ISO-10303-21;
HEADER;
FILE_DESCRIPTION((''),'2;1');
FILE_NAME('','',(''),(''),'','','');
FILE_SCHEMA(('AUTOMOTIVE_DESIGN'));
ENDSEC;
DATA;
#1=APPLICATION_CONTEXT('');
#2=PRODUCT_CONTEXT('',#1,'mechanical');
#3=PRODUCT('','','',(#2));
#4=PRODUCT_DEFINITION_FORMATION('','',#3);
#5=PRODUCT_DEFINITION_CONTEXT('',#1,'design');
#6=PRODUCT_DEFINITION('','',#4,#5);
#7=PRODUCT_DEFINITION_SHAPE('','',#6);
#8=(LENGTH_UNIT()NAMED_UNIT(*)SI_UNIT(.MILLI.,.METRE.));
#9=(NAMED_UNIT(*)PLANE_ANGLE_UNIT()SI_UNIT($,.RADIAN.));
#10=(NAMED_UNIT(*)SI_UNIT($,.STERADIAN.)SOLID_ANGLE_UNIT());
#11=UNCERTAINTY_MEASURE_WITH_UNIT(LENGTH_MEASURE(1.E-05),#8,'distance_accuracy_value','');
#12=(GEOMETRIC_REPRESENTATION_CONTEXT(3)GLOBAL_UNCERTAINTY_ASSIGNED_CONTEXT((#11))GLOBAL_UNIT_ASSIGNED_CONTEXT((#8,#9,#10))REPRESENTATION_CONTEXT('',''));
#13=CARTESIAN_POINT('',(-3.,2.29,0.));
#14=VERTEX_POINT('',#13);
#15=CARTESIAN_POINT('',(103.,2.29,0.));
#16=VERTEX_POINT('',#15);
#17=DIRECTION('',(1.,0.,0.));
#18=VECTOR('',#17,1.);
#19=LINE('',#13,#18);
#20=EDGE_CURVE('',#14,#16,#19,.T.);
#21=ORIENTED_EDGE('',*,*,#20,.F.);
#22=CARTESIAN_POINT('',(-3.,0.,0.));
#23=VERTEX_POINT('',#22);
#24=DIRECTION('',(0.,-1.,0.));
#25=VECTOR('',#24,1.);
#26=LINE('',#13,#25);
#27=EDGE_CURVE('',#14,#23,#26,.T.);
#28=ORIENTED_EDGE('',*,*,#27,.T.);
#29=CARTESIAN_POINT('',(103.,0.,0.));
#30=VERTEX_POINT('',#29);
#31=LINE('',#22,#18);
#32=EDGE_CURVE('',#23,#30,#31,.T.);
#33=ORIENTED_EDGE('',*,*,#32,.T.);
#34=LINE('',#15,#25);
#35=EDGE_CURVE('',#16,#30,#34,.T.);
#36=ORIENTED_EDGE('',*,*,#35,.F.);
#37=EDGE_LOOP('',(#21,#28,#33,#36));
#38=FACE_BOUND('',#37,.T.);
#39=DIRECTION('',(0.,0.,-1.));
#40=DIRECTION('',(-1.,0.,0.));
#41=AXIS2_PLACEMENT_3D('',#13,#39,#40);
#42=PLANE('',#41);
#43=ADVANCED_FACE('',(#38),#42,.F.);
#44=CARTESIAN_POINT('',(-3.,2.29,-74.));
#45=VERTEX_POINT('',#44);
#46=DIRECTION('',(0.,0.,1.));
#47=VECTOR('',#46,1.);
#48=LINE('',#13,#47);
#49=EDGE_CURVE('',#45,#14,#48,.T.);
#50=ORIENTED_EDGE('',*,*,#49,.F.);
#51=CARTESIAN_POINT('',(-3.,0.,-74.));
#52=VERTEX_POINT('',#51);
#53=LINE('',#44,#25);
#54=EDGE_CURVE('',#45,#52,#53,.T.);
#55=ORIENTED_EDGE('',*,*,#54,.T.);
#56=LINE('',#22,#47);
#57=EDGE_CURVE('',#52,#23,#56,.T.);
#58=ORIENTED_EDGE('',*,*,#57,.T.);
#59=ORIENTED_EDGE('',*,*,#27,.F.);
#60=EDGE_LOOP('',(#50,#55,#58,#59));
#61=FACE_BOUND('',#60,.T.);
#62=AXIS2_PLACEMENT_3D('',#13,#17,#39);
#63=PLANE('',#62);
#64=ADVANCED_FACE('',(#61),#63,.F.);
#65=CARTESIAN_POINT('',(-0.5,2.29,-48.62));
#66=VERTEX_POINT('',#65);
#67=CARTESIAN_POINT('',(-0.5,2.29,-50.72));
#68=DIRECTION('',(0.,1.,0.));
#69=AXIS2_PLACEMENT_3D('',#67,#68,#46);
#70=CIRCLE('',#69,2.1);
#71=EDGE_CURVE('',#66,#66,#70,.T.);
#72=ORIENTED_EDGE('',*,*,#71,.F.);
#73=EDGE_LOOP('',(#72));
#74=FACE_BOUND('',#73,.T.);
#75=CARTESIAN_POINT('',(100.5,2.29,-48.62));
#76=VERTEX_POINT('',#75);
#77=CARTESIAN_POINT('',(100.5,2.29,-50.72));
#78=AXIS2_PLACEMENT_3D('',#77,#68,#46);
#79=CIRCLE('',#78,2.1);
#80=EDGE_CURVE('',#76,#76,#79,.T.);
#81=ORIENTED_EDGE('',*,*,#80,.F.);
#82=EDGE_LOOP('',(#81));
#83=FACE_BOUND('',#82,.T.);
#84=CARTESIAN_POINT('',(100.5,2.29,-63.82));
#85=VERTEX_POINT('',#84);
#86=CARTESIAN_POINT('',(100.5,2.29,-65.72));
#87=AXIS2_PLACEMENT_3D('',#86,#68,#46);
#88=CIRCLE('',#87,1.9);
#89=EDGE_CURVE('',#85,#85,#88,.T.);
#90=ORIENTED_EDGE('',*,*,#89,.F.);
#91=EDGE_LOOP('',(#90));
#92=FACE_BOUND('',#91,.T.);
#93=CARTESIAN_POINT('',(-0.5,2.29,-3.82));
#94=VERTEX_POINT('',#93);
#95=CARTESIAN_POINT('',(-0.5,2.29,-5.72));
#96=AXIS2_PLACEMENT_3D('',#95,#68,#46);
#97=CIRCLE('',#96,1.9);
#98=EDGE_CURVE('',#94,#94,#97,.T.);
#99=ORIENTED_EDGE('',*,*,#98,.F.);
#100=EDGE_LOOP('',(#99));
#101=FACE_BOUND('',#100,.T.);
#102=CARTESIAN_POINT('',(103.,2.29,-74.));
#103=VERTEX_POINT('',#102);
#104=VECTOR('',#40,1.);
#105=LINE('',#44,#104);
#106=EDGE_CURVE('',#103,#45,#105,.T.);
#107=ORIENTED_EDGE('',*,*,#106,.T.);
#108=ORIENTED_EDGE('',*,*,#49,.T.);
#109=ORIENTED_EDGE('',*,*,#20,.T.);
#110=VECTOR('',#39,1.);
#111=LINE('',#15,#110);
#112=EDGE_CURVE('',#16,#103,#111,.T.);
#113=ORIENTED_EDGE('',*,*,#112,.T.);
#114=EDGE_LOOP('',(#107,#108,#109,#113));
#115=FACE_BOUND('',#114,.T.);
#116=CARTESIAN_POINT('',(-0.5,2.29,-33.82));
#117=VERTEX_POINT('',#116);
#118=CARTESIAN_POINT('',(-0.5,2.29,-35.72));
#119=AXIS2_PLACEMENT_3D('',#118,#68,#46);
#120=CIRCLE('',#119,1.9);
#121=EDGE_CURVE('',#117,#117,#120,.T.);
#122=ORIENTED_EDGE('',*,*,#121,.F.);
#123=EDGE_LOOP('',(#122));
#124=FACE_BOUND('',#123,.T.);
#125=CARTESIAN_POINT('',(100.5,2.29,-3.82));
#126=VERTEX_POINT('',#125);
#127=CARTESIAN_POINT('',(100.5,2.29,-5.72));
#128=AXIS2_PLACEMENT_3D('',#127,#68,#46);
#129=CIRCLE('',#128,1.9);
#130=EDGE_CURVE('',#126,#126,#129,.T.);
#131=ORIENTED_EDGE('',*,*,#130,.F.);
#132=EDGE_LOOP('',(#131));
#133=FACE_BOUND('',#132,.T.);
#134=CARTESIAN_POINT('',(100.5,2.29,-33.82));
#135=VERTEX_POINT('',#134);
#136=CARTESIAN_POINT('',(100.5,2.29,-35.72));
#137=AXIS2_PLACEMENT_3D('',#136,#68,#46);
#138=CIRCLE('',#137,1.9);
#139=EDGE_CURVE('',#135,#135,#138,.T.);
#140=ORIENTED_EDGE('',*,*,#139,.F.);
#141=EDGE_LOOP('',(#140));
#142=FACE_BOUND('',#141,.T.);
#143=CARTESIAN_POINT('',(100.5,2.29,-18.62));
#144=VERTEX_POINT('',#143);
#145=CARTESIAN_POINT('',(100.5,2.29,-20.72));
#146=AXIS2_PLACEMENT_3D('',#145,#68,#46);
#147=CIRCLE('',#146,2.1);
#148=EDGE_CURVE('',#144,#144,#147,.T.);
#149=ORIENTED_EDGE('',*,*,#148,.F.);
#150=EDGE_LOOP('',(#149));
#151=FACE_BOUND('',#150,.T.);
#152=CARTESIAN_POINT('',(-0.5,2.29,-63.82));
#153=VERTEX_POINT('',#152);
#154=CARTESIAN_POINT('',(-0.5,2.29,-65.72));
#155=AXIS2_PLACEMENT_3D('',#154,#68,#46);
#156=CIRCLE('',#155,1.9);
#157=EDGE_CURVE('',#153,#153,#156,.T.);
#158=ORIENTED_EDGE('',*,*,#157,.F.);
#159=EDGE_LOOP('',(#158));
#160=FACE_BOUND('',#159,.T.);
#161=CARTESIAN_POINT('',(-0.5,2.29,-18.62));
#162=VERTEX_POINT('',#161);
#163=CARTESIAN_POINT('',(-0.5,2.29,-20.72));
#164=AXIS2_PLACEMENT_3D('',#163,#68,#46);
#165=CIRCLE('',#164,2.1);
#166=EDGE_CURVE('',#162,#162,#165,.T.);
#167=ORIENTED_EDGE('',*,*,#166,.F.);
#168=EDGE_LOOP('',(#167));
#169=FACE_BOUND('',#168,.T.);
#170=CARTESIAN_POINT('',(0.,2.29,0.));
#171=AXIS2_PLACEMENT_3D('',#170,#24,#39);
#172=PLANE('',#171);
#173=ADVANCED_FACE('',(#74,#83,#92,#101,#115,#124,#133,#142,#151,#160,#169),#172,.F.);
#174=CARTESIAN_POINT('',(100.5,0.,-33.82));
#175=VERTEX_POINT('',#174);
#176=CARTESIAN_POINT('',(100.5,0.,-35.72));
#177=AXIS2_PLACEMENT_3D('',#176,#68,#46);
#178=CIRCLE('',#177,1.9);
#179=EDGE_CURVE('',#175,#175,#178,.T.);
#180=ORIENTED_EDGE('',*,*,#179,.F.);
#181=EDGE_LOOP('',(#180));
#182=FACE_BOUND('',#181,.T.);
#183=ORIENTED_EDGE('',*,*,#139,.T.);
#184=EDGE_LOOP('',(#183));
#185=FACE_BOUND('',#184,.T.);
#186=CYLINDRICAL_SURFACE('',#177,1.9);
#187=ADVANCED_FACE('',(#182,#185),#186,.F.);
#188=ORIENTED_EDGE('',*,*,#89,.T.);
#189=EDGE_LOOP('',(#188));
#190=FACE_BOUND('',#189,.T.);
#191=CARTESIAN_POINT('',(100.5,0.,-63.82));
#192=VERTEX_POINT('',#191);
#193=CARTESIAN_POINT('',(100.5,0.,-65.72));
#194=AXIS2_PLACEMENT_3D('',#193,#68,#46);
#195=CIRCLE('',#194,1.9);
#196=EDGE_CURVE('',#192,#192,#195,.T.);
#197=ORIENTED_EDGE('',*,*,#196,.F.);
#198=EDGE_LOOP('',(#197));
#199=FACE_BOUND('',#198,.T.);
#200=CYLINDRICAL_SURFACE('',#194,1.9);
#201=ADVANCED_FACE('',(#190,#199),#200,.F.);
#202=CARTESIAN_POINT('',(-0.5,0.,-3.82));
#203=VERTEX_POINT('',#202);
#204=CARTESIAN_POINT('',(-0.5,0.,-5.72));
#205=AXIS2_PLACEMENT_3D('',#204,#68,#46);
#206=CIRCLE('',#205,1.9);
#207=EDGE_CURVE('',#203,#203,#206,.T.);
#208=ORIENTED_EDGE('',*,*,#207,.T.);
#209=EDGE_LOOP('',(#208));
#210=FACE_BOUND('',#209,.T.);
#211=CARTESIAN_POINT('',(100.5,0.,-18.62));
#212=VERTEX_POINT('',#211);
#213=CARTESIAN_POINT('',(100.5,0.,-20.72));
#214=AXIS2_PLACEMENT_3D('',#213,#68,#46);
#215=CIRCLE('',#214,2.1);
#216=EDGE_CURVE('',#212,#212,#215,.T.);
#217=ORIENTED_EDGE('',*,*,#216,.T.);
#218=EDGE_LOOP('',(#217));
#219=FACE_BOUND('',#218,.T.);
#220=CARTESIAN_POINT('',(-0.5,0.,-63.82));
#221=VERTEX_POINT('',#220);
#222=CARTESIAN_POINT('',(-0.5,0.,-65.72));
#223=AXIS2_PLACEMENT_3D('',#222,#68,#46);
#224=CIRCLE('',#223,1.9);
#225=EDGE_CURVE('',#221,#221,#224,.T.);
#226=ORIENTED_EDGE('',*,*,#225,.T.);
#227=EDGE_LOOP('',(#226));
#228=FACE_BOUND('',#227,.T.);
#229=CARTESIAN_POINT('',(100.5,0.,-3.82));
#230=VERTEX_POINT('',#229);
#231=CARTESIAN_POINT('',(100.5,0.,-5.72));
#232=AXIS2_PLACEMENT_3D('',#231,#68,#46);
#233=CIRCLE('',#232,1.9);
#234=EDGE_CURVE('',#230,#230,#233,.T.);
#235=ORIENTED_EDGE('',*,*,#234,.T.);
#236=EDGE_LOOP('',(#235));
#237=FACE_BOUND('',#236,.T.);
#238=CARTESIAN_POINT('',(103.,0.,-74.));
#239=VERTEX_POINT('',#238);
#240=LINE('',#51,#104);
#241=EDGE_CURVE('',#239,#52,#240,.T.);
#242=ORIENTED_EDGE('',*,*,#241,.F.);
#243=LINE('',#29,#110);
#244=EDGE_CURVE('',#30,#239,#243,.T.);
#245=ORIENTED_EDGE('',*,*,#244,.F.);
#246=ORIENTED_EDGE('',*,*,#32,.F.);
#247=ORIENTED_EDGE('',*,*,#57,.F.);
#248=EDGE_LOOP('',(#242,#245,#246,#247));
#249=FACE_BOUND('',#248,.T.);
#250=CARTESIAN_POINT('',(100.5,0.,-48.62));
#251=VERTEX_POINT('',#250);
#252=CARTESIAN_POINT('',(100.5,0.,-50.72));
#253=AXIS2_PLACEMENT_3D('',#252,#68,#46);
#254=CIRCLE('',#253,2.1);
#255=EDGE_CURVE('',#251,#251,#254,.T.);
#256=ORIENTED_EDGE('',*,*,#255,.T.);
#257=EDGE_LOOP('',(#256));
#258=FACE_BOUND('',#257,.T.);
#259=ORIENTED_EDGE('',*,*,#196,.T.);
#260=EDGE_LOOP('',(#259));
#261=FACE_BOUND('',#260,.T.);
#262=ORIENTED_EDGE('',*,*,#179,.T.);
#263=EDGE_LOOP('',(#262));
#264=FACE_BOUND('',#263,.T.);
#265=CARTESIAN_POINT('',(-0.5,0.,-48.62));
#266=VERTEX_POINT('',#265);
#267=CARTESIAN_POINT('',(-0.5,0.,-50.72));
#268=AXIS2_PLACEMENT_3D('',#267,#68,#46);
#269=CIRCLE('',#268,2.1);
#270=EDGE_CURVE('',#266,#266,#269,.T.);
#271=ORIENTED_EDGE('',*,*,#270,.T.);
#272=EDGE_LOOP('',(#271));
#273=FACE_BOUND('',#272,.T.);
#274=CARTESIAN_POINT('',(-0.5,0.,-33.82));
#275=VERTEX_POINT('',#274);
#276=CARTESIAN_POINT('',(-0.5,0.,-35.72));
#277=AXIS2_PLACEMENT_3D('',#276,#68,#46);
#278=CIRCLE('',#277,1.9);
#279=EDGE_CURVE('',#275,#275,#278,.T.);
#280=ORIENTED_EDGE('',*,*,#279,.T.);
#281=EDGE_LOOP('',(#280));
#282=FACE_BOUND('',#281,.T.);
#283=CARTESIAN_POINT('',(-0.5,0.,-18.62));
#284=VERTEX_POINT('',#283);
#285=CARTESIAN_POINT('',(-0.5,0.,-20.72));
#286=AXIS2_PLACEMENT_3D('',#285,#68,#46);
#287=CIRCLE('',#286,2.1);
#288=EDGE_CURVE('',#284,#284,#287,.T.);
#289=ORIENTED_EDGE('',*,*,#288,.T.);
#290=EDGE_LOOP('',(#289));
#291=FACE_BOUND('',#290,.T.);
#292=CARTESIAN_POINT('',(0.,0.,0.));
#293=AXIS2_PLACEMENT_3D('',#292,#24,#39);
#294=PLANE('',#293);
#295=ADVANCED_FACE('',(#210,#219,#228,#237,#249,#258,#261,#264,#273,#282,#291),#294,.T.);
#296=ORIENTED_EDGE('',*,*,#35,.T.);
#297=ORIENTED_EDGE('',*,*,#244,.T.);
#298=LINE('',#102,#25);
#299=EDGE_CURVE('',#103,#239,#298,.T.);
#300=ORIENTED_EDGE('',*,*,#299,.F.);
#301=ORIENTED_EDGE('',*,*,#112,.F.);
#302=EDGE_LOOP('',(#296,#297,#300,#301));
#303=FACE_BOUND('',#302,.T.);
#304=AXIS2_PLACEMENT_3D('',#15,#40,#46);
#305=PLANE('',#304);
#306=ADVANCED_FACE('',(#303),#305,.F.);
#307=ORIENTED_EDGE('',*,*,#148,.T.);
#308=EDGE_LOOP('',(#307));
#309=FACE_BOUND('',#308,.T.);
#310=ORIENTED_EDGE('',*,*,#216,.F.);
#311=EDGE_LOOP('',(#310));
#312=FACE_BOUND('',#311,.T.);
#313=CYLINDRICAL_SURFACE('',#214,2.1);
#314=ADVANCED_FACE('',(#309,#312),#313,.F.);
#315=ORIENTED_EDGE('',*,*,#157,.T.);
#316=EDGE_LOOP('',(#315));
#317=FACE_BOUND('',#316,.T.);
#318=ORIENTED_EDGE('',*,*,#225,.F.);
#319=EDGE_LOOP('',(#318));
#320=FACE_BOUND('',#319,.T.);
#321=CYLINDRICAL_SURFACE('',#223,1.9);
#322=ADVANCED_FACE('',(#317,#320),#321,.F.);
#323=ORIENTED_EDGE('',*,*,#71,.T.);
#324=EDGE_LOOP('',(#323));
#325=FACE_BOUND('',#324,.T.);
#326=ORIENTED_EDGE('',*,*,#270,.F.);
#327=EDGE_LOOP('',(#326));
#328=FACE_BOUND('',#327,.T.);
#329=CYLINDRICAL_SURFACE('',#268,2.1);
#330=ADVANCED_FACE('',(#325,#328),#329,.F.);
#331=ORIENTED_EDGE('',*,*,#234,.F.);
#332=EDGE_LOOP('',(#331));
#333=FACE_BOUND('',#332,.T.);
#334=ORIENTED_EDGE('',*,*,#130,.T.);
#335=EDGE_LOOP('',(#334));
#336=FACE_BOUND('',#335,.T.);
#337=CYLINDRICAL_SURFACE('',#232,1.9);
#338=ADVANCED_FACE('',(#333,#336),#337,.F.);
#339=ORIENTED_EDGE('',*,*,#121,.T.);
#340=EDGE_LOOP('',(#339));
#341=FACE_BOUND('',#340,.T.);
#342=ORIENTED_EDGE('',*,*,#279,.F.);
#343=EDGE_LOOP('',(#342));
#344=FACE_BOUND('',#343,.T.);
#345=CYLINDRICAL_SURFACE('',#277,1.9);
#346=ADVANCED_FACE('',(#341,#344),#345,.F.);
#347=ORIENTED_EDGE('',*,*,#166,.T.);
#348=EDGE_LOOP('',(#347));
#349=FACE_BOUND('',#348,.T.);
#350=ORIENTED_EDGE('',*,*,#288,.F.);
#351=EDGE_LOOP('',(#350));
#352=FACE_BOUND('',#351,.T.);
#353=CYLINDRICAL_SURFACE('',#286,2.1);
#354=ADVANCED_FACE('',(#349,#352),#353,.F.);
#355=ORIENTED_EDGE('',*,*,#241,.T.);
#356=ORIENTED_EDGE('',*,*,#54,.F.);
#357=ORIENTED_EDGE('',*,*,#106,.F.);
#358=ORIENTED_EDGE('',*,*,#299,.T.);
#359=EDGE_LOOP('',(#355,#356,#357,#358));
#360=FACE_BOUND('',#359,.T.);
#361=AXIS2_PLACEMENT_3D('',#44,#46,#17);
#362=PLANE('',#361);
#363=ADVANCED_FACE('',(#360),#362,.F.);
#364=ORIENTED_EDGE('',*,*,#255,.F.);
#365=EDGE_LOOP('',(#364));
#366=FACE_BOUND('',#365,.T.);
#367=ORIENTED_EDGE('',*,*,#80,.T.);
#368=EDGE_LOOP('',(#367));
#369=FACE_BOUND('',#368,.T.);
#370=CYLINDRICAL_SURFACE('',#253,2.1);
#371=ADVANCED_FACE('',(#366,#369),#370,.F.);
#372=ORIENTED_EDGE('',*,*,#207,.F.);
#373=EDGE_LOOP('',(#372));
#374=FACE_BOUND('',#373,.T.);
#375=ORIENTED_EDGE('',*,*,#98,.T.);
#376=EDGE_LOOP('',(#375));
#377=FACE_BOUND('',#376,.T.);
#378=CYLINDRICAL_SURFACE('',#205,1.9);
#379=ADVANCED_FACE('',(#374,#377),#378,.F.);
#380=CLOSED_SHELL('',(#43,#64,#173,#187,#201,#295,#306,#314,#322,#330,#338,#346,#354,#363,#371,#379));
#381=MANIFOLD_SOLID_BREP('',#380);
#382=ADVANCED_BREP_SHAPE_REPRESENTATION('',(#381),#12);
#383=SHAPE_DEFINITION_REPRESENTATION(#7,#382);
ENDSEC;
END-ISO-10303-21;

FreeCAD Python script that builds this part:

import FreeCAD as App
import Part
import Sketcher
from FreeCAD import Vector


def add_polygon(sketch, points):
    """Adds a closed chain of lines whose ends are joined by coincident constraints."""
    first, n = sketch.GeometryCount, len(points)
    for a, b in zip(points, points[1:] + points[:1]):
        sketch.addGeometry(Part.LineSegment(App.Vector(*a, 0), App.Vector(*b, 0)), False)
    for i in range(n):
        sketch.addConstraint(Sketcher.Constraint("Coincident", first + i, 2, first + (i + 1) % n, 1))

doc = App.newDocument("Part")
params = doc.addObject("Spreadsheet::Sheet", "Params")
for row, (alias, value) in enumerate([
    ("sketch1_width", "106 mm"),
    ("sketch1_height", "74 mm"),
    ("pad1_length", "2.29 mm"),
    ("sketch2_diameter", "3.8 mm"),
    ("sketch2_diameter2", "4.2 mm"),
], start=1):
    params.set(f"A{row}", alias)
    params.set(f"B{row}", "=" + value)
    params.setAlias(f"B{row}", alias)

body = doc.addObject("PartDesign::Body", "Body")

# Sketch on XZ plane
sketch1 = body.newObject("Sketcher::SketchObject", "Sketch")
sketch1.AttachmentSupport = (doc.getObject("XZ_Plane"), [""])
sketch1.MapMode = "FlatFace"
add_polygon(sketch1, [(-3, -74), (-3, 0), (103, 0), (103, -74)])  # lines 0-3
sketch1.addConstraint([
    Sketcher.Constraint("Vertical", 0),
    Sketcher.Constraint("Horizontal", 1),
    Sketcher.Constraint("Vertical", 2),
    Sketcher.Constraint("Horizontal", 3),
    Sketcher.Constraint("PointOnObject", 0, 2, -1),
    Sketcher.Constraint("DistanceX", 1, 1, 1, 2, 106.0),
    Sketcher.Constraint("DistanceY", 0, 1, 0, 2, 74.0),
    Sketcher.Constraint("DistanceX", 0, 2, -1, 1, 3.0),
])
sketch1.setExpression("Constraints[9]", "Params.sketch1_width")
sketch1.setExpression("Constraints[10]", "Params.sketch1_height")
pad1 = body.newObject("PartDesign::Pad", "Pad")
pad1.Profile = sketch1
pad1.setExpression("Length", "Params.pad1_length")
pad1.Reversed = True

# Sketch on XZ plane
sketch2 = body.newObject("Sketcher::SketchObject", "Sketch001")
sketch2.AttachmentSupport = (doc.getObject("XZ_Plane"), [""])
sketch2.MapMode = "FlatFace"
sketch2.AttachmentOffset = App.Placement(Vector(0, 0, -2.29), App.Rotation())
sketch2.addGeometry([
    Part.Circle(Vector(-0.5, -5.72, 0), Vector(0, 0, 1), 1.9),  # 0
    Part.Circle(Vector(100.5, -5.72, 0), Vector(0, 0, 1), 1.9),  # 1
    Part.Circle(Vector(100.5, -35.72, 0), Vector(0, 0, 1), 1.9),  # 2
    Part.Circle(Vector(100.5, -65.72, 0), Vector(0, 0, 1), 1.9),  # 3
    Part.Circle(Vector(-0.5, -35.72, 0), Vector(0, 0, 1), 1.9),  # 4
    Part.Circle(Vector(-0.5, -65.72, 0), Vector(0, 0, 1), 1.9),  # 5
    Part.Circle(Vector(-0.5, -20.72, 0), Vector(0, 0, 1), 2.1),  # 6
    Part.Circle(Vector(100.5, -20.72, 0), Vector(0, 0, 1), 2.1),  # 7
    Part.Circle(Vector(100.5, -50.72, 0), Vector(0, 0, 1), 2.1),  # 8
    Part.Circle(Vector(-0.5, -50.72, 0), Vector(0, 0, 1), 2.1),  # 9
], False)
sketch2.addConstraint([
    Sketcher.Constraint("Equal", 0, 1),
    Sketcher.Constraint("Equal", 1, 2),
    Sketcher.Constraint("Equal", 2, 3),
    Sketcher.Constraint("Equal", 3, 4),
    Sketcher.Constraint("Equal", 4, 5),
    Sketcher.Constraint("Equal", 6, 7),
    Sketcher.Constraint("Equal", 7, 8),
    Sketcher.Constraint("Equal", 8, 9),
    Sketcher.Constraint("Horizontal", 0, 3, 1, 3),
    Sketcher.Constraint("Horizontal", 2, 3, 4, 3),
    Sketcher.Constraint("Horizontal", 3, 3, 5, 3),
    Sketcher.Constraint("Horizontal", 6, 3, 7, 3),
    Sketcher.Constraint("Horizontal", 8, 3, 9, 3),
    Sketcher.Constraint("Vertical", 1, 3, 2, 3),
    Sketcher.Constraint("Vertical", 2, 3, 3, 3),
    Sketcher.Constraint("Vertical", 0, 3, 4, 3),
    Sketcher.Constraint("Vertical", 4, 3, 5, 3),
    Sketcher.Constraint("Vertical", 5, 3, 6, 3),
    Sketcher.Constraint("Vertical", 3, 3, 7, 3),
    Sketcher.Constraint("Vertical", 7, 3, 8, 3),
    Sketcher.Constraint("Vertical", 6, 3, 9, 3),
    Sketcher.Constraint("Diameter", 0, 3.8),
    Sketcher.Constraint("Diameter", 6, 4.2),
    Sketcher.Constraint("DistanceX", 0, 3, 1, 3, 101.0),
    Sketcher.Constraint("DistanceY", 2, 3, 1, 3, 30.0),
    Sketcher.Constraint("DistanceY", 3, 3, 2, 3, 30.0),
    Sketcher.Constraint("DistanceY", 6, 3, 0, 3, 15.0),
    Sketcher.Constraint("DistanceY", 8, 3, 2, 3, 15.0),
    Sketcher.Constraint("DistanceX", 0, 3, -1, 1, 0.5),
    Sketcher.Constraint("DistanceY", 0, 3, -1, 1, 5.72),
])
sketch2.setExpression("Constraints[21]", "Params.sketch2_diameter")
sketch2.setExpression("Constraints[22]", "Params.sketch2_diameter2")
pocket1 = body.newObject("PartDesign::Pocket", "Pocket")
pocket1.Profile = sketch2
pocket1.Type = "ThroughAll"
pocket1.Reversed = True

doc.recompute()
